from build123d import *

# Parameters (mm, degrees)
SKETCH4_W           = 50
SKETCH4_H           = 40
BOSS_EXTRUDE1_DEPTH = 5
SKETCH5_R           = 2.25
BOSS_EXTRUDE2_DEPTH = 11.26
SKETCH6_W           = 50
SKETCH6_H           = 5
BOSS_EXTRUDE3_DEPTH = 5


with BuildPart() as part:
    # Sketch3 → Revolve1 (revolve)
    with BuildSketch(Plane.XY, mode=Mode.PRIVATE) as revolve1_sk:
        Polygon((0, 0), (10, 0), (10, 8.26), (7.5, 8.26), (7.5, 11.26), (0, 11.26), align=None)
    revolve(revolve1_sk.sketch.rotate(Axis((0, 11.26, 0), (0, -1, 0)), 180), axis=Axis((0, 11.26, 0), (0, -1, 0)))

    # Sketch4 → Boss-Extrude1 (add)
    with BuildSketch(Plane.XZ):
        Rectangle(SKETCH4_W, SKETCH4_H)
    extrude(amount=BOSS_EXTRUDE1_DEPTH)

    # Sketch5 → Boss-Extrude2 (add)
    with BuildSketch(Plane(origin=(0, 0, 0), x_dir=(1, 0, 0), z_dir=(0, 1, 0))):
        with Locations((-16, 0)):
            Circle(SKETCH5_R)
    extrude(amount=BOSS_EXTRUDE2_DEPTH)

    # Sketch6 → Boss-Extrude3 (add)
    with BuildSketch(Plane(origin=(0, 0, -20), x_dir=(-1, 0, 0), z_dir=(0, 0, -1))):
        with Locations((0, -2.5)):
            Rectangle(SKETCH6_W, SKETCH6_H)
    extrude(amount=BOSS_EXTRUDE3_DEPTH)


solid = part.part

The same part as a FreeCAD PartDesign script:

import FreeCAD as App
import Part
import Sketcher

V = App.Vector
Q = App.Units.Quantity

doc = App.newDocument("Part")
params = doc.addObject("Spreadsheet::Sheet", "Params")
for row, (alias, value) in enumerate([
    ("sketch1_width", "10 mm"),
    ("sketch1_height", "3 mm"),
    ("sketch1_width2", "2.5 mm"),
    ("sketch1_height2", "8.26 mm"),
    ("revolution_angle", "360 deg"),
    ("sketch2_width", "50 mm"),
    ("sketch2_height", "40 mm"),
    ("pad1_length", "5 mm"),
    ("sketch3_diameter", "4.5 mm"),
    ("pad2_length", "11.26 mm"),
    ("sketch4_width", "50 mm"),
    ("sketch4_height", "5 mm"),
    ("pad3_length", "5 mm"),
], start=1):
    params.set(f"A{row}", alias)
    params.set(f"B{row}", "=" + value)
    params.setAlias(f"B{row}", alias)

body = doc.addObject("PartDesign::Body", "Body")

# Sketch on XY plane
sketch1 = body.newObject("Sketcher::SketchObject", "Sketch")
sketch1.AttachmentSupport = (doc.getObject("XY_Plane"), [""])
sketch1.MapMode = "FlatFace"
sketch1.addGeometry(Part.LineSegment(V(0, 0, 0), V(10, 0, 0)), False)
sketch1.addGeometry(Part.LineSegment(V(10, 0, 0), V(10, 8.3, 0)), False)
sketch1.addGeometry(Part.LineSegment(V(10, 8.3, 0), V(7.5, 8.3, 0)), False)
sketch1.addGeometry(Part.LineSegment(V(7.5, 8.3, 0), V(7.5, 11.3, 0)), False)
sketch1.addGeometry(Part.LineSegment(V(7.5, 11.3, 0), V(0, 11.3, 0)), False)
sketch1.addGeometry(Part.LineSegment(V(0, 11.3, 0), V(0, 0, 0)), False)
sketch1.addConstraint(Sketcher.Constraint("Coincident", 0, 2, 1, 1))
sketch1.addConstraint(Sketcher.Constraint("Coincident", 1, 2, 2, 1))
sketch1.addConstraint(Sketcher.Constraint("Coincident", 2, 2, 3, 1))
sketch1.addConstraint(Sketcher.Constraint("Coincident", 3, 2, 4, 1))
sketch1.addConstraint(Sketcher.Constraint("Coincident", 4, 2, 5, 1))
sketch1.addConstraint(Sketcher.Constraint("Coincident", 5, 2, 0, 1))
sketch1.addConstraint(Sketcher.Constraint("Horizontal", 0))
sketch1.addConstraint(Sketcher.Constraint("Vertical", 1))
sketch1.addConstraint(Sketcher.Constraint("Horizontal", 2))
sketch1.addConstraint(Sketcher.Constraint("Vertical", 3))
sketch1.addConstraint(Sketcher.Constraint("Horizontal", 4))
sketch1.addConstraint(Sketcher.Constraint("Vertical", 5))
sketch1.addConstraint(Sketcher.Constraint("Coincident", 5, 2, -1, 1))
sketch1.addConstraint(Sketcher.Constraint("DistanceX", 0, 1, 0, 2, Q("10 mm")))
sketch1.addConstraint(Sketcher.Constraint("DistanceY", 3, 1, 3, 2, Q("3 mm")))
sketch1.addConstraint(Sketcher.Constraint("DistanceX", 2, 2, 2, 1, Q("2.5 mm")))
sketch1.addConstraint(Sketcher.Constraint("DistanceY", 1, 1, 1, 2, Q("8.26 mm")))
sketch1.setExpression("Constraints[13]", "Params.sketch1_width")
sketch1.setExpression("Constraints[14]", "Params.sketch1_height")
sketch1.setExpression("Constraints[15]", "Params.sketch1_width2")
sketch1.setExpression("Constraints[16]", "Params.sketch1_height2")
revolution = body.newObject("PartDesign::Revolution", "Revolution")
revolution.Profile = sketch1
revolution.ReferenceAxis = (sketch1, ["V_Axis"])
revolution.setExpression("Angle", "Params.revolution_angle")

# Sketch on XZ plane
sketch2 = body.newObject("Sketcher::SketchObject", "Sketch001")
sketch2.AttachmentSupport = (doc.getObject("XZ_Plane"), [""])
sketch2.MapMode = "FlatFace"
sketch2.addGeometry(Part.LineSegment(V(-25, 20, 0), V(-25, -20, 0)), False)
sketch2.addGeometry(Part.LineSegment(V(-25, -20, 0), V(25, -20, 0)), False)
sketch2.addGeometry(Part.LineSegment(V(25, -20, 0), V(25, 20, 0)), False)
sketch2.addGeometry(Part.LineSegment(V(25, 20, 0), V(-25, 20, 0)), False)
sketch2.addConstraint(Sketcher.Constraint("Coincident", 0, 2, 1, 1))
sketch2.addConstraint(Sketcher.Constraint("Coincident", 1, 2, 2, 1))
sketch2.addConstraint(Sketcher.Constraint("Coincident", 2, 2, 3, 1))
sketch2.addConstraint(Sketcher.Constraint("Coincident", 3, 2, 0, 1))
sketch2.addConstraint(Sketcher.Constraint("Vertical", 0))
sketch2.addConstraint(Sketcher.Constraint("Horizontal", 1))
sketch2.addConstraint(Sketcher.Constraint("Vertical", 2))
sketch2.addConstraint(Sketcher.Constraint("Horizontal", 3))
sketch2.addConstraint(Sketcher.Constraint("Symmetric", 0, 2, 2, 2, -1, 1))
sketch2.addConstraint(Sketcher.Constraint("DistanceX", 1, 1, 1, 2, Q("50 mm")))
sketch2.addConstraint(Sketcher.Constraint("DistanceY", 0, 2, 0, 1, Q("40 mm")))
sketch2.setExpression("Constraints[9]", "Params.sketch2_width")
sketch2.setExpression("Constraints[10]", "Params.sketch2_height")
pad1 = body.newObject("PartDesign::Pad", "Pad")
pad1.Profile = sketch2
pad1.setExpression("Length", "Params.pad1_length")

# Sketch on XZ plane
sketch3 = body.newObject("Sketcher::SketchObject", "Sketch002")
sketch3.AttachmentSupport = (doc.getObject("XZ_Plane"), [""])
sketch3.MapMode = "FlatFace"
sketch3.addGeometry(Part.Circle(V(-16, 0, 0), V(0, 0, 1), 2.2), False)
sketch3.addConstraint(Sketcher.Constraint("PointOnObject", 0, 3, -1))
sketch3.addConstraint(Sketcher.Constraint("Diameter", 0, Q("4.5 mm")))
sketch3.addConstraint(Sketcher.Constraint("DistanceX", 0, 3, -1, 1, Q("16 mm")))
sketch3.setExpression("Constraints[1]", "Params.sketch3_diameter")
pad2 = body.newObject("PartDesign::Pad", "Pad001")
pad2.Profile = sketch3
pad2.setExpression("Length", "Params.pad2_length")
pad2.Reversed = True

# Sketch on XY plane
sketch4 = body.newObject("Sketcher::SketchObject", "Sketch003")
sketch4.AttachmentSupport = (doc.getObject("XY_Plane"), [""])
sketch4.MapMode = "FlatFace"
sketch4.AttachmentOffset = App.Placement(V(0, 0, -20), App.Rotation())
sketch4.addGeometry(Part.LineSegment(V(25, 0, 0), V(25, -5, 0)), False)
sketch4.addGeometry(Part.LineSegment(V(25, -5, 0), V(-25, -5, 0)), False)
sketch4.addGeometry(Part.LineSegment(V(-25, -5, 0), V(-25, 0, 0)), False)
sketch4.addGeometry(Part.LineSegment(V(-25, 0, 0), V(25, 0, 0)), False)
sketch4.addConstraint(Sketcher.Constraint("Coincident", 0, 2, 1, 1))
sketch4.addConstraint(Sketcher.Constraint("Coincident", 1, 2, 2, 1))
sketch4.addConstraint(Sketcher.Constraint("Coincident", 2, 2, 3, 1))
sketch4.addConstraint(Sketcher.Constraint("Coincident", 3, 2, 0, 1))
sketch4.addConstraint(Sketcher.Constraint("Vertical", 0))
sketch4.addConstraint(Sketcher.Constraint("Horizontal", 1))
sketch4.addConstraint(Sketcher.Constraint("Vertical", 2))
sketch4.addConstraint(Sketcher.Constraint("Horizontal", 3))
sketch4.addConstraint(Sketcher.Constraint("Symmetric", 2, 2, 3, 2, -1, 1))
sketch4.addConstraint(Sketcher.Constraint("DistanceX", 1, 2, 1, 1, Q("50 mm")))
sketch4.addConstraint(Sketcher.Constraint("DistanceY", 0, 2, 0, 1, Q("5 mm")))
sketch4.setExpression("Constraints[9]", "Params.sketch4_width")
sketch4.setExpression("Constraints[10]", "Params.sketch4_height")
pad3 = body.newObject("PartDesign::Pad", "Pad002")
pad3.Profile = sketch4
pad3.setExpression("Length", "Params.pad3_length")
pad3.Reversed = True

doc.recompute()
